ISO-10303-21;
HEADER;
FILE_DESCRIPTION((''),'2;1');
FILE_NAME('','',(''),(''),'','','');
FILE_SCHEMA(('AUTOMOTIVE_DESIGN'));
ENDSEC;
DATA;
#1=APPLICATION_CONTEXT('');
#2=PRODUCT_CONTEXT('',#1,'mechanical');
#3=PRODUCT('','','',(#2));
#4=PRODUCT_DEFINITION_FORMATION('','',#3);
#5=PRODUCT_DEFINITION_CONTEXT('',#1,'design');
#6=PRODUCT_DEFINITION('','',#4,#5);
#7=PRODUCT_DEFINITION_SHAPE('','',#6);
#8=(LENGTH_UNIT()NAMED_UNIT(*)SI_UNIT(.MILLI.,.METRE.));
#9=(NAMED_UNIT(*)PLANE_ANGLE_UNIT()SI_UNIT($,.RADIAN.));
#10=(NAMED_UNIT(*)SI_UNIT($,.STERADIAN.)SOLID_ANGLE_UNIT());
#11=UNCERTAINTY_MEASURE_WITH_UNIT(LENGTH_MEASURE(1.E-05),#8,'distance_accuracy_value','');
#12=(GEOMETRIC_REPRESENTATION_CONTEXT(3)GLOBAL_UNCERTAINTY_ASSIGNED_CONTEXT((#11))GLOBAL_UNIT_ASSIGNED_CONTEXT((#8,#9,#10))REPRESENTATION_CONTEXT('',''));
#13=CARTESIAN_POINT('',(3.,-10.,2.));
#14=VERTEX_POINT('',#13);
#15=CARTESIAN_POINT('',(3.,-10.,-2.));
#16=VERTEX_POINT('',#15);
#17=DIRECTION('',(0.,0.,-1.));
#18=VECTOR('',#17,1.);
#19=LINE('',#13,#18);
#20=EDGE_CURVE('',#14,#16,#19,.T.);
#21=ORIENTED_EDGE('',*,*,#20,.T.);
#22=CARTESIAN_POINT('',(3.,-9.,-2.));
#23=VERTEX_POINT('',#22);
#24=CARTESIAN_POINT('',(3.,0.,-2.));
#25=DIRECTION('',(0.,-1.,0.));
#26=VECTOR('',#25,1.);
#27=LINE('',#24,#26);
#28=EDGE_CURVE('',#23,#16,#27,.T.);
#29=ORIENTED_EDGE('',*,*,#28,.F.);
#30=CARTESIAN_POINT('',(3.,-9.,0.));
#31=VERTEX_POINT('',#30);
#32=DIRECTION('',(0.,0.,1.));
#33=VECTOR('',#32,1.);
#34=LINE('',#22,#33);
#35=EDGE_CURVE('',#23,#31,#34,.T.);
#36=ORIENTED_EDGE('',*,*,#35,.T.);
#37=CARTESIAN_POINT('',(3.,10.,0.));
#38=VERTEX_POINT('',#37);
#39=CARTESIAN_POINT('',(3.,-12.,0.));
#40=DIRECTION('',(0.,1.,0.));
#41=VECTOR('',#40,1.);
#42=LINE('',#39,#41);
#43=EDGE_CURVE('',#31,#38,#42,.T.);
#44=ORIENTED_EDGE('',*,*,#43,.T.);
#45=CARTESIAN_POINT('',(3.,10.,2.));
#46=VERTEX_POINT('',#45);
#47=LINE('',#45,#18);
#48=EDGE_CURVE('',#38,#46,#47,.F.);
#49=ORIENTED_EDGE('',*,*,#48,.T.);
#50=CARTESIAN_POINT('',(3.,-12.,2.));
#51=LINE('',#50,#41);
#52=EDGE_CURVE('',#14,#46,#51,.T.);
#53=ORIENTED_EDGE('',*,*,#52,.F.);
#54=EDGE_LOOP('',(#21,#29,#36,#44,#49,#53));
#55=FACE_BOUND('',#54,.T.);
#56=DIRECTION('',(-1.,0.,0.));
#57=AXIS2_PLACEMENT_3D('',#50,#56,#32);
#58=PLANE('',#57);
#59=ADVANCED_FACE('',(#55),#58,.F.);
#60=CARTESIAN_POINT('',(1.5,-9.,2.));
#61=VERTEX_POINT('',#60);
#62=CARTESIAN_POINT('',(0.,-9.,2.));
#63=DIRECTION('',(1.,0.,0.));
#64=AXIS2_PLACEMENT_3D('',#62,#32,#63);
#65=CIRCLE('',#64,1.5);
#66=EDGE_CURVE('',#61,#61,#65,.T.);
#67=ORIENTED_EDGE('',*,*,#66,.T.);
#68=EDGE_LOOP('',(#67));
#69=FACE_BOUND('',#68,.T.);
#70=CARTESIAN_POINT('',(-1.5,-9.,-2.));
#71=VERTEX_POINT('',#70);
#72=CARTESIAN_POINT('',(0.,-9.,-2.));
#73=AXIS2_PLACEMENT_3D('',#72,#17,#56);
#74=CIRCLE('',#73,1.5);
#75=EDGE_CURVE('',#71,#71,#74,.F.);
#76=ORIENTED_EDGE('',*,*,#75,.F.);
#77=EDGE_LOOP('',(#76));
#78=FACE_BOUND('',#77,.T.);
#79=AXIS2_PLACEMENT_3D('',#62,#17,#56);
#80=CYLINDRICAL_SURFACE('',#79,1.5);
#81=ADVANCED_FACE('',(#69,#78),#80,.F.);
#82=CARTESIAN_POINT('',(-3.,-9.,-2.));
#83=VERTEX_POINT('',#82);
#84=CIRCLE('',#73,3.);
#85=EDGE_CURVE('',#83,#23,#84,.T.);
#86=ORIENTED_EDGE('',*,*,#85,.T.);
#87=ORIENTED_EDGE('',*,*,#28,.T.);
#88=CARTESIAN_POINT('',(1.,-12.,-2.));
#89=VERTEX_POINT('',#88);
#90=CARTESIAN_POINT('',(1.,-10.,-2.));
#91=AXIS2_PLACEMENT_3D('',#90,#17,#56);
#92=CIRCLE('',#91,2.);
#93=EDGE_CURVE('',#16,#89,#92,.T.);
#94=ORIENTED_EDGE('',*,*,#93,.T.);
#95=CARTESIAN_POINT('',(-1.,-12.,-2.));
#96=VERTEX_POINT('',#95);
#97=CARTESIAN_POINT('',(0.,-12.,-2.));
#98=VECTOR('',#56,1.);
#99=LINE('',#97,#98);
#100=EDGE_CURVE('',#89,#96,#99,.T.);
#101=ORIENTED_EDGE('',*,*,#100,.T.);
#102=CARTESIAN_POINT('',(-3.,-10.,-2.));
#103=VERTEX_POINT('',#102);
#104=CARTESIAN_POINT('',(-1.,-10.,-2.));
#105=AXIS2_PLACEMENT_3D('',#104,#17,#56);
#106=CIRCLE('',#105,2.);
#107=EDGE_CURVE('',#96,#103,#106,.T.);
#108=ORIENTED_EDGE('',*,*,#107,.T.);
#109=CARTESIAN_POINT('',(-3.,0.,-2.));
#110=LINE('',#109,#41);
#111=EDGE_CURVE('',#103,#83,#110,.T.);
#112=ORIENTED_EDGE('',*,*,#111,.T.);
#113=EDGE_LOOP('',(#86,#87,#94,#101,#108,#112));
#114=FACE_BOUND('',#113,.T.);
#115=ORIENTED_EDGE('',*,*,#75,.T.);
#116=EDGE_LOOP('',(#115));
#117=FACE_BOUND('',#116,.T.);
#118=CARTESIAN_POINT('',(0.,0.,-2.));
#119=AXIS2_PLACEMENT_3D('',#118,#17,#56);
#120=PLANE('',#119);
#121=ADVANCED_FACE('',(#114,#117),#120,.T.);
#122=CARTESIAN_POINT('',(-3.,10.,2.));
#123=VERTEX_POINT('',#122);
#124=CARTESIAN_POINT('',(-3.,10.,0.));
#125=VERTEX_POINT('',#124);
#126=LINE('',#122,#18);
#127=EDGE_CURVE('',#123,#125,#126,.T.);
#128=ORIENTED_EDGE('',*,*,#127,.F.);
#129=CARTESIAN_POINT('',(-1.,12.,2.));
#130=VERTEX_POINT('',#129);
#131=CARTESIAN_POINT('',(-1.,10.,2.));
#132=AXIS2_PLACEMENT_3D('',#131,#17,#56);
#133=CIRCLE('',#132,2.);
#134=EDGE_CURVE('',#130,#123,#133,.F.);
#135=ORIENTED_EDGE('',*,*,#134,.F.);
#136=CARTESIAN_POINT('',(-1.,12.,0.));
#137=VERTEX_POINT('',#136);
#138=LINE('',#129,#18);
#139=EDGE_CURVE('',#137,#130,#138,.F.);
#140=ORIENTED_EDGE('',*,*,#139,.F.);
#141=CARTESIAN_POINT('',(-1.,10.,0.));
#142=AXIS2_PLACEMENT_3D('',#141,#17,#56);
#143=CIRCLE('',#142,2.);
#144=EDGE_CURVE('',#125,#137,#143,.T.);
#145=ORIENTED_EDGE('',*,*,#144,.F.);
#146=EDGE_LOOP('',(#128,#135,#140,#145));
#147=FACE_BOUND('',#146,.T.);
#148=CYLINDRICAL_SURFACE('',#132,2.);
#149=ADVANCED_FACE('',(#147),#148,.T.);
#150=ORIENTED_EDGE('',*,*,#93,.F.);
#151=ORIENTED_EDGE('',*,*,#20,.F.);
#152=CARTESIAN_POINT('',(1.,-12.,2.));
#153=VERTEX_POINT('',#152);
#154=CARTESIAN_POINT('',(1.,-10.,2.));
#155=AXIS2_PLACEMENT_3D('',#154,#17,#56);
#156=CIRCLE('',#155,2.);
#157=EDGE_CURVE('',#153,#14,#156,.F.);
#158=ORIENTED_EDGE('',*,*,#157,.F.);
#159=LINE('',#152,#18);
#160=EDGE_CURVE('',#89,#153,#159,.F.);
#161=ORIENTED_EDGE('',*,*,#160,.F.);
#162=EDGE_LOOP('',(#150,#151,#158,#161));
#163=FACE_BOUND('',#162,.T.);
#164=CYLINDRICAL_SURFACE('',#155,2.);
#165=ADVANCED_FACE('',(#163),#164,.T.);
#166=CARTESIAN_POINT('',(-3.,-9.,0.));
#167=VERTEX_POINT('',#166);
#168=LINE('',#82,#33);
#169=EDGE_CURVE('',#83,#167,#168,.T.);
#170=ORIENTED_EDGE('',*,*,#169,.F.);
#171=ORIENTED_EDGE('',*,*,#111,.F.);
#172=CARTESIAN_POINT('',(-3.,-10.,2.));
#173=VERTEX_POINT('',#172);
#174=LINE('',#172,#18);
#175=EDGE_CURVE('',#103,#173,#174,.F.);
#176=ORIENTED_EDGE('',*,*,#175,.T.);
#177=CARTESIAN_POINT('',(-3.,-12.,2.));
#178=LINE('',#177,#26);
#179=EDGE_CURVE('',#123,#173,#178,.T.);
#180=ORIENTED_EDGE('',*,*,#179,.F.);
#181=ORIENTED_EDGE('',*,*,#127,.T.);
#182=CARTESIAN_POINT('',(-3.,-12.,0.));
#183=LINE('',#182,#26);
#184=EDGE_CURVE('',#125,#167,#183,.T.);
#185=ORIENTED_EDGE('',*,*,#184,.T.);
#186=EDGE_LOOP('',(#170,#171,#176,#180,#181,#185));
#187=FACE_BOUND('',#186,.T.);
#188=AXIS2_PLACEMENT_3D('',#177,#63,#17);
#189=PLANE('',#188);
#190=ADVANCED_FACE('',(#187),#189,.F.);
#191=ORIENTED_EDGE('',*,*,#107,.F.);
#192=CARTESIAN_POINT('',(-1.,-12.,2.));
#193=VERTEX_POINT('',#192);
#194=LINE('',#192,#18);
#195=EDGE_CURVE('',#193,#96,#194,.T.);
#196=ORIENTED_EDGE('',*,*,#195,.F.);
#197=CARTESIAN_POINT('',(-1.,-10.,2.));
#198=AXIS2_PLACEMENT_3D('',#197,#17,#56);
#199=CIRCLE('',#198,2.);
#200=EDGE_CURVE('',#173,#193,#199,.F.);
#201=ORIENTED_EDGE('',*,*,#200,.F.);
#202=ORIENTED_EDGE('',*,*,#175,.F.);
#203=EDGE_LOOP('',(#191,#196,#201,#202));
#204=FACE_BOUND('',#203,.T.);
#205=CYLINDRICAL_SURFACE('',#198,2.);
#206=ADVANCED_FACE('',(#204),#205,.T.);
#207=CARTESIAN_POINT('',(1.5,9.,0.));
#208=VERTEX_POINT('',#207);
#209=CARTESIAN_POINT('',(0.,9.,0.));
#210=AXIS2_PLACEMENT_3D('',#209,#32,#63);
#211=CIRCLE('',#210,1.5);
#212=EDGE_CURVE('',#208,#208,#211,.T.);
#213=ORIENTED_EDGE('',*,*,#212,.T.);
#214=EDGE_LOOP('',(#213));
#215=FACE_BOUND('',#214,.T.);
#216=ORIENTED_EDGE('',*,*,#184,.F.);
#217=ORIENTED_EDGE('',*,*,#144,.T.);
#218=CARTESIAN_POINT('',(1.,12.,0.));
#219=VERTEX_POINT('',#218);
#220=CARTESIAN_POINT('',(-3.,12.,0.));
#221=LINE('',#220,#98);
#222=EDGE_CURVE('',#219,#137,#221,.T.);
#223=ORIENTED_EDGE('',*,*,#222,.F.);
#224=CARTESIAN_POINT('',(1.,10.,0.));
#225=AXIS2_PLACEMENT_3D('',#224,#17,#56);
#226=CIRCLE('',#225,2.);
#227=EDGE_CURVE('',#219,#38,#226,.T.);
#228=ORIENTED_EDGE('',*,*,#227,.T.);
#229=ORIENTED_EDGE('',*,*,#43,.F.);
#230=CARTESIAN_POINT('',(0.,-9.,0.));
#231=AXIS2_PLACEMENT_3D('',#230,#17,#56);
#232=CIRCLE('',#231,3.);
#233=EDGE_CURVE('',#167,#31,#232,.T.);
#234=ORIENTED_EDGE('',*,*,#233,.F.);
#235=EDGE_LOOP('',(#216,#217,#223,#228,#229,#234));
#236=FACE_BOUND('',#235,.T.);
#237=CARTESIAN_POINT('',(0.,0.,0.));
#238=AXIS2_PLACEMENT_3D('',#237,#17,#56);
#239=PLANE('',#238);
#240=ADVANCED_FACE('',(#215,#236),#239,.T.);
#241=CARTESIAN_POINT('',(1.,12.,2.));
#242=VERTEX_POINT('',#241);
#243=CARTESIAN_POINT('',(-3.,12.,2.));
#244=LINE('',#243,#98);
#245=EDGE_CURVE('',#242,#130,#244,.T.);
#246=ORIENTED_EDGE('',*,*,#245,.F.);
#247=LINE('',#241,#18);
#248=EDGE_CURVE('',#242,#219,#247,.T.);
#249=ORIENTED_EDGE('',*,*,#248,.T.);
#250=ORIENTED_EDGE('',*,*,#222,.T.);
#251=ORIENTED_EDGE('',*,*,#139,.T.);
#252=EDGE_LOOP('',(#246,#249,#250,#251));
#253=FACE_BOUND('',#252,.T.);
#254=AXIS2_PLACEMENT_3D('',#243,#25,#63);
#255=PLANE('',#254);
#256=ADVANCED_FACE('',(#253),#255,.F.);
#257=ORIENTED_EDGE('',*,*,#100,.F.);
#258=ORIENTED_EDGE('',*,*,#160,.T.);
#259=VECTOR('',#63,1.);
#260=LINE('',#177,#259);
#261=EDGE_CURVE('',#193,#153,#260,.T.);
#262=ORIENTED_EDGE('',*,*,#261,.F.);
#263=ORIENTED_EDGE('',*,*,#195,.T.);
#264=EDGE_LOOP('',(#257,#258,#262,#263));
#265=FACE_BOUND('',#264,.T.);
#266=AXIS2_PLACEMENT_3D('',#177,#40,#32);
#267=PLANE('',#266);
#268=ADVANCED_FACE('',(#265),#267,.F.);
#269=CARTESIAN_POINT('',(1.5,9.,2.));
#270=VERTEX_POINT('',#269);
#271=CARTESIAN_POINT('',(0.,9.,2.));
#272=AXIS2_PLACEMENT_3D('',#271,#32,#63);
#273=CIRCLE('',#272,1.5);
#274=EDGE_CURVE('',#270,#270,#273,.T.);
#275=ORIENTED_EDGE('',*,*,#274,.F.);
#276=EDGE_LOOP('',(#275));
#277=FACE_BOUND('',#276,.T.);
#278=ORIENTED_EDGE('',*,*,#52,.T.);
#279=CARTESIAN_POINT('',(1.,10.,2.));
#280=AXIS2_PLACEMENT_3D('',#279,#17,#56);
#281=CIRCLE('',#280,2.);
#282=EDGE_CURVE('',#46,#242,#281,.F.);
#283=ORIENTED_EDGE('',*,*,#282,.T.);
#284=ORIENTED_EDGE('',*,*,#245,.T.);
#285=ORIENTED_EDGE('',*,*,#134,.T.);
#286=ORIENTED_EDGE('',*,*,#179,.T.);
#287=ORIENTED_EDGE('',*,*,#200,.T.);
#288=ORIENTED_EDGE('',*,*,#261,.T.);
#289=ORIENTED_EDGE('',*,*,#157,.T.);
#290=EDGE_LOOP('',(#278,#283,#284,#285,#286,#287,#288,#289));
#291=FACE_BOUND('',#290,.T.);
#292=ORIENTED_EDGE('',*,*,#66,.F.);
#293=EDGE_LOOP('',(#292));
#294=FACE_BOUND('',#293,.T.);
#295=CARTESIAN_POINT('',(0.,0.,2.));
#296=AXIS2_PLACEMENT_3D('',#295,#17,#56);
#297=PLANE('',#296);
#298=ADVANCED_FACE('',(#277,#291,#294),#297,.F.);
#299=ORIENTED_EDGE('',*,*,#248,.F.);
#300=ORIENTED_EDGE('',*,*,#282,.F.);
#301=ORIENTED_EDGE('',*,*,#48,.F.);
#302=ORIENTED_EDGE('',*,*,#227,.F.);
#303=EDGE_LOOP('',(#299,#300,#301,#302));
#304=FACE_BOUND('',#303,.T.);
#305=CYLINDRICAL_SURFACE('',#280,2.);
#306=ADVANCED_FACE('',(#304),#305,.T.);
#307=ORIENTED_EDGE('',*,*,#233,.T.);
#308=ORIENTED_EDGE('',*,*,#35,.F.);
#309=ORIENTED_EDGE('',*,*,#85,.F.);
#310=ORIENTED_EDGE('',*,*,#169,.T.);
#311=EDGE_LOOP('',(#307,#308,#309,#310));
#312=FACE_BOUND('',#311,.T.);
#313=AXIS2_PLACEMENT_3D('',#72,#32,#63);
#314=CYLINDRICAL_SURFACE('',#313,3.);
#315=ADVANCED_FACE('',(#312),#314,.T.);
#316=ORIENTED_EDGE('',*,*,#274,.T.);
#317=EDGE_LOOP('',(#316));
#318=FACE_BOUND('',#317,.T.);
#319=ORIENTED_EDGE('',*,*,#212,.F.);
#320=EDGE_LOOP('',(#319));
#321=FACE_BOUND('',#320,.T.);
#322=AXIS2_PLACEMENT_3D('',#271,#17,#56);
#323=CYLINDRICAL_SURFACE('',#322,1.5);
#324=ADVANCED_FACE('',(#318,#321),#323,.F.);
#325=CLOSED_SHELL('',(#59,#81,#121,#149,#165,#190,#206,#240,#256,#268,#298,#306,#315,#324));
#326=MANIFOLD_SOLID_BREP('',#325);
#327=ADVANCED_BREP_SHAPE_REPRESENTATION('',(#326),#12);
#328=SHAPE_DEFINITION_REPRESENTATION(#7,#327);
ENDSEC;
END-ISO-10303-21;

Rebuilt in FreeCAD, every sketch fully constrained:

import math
import FreeCAD as App
import Part
import Sketcher


def edges_at(feature, points):
    """Names of the edges that pass closest to the given points."""
    edges = feature.Shape.Edges
    near = lambda p: min(range(len(edges)), key=lambda i: edges[i].distToShape(Part.Vertex(*p))[0])
    return sorted({f"Edge{near(p) + 1}" for p in points})

doc = App.newDocument("Part")
body = doc.addObject("PartDesign::Body", "Body")

sketch1 = body.newObject("Sketcher::SketchObject", "Sketch")
sketch1.AttachmentSupport = (doc.getObject("XY_Plane"), [""])
sketch1.MapMode = "FlatFace"
sketch1.addGeometry(Part.LineSegment(App.Vector(-3, 12, 0), App.Vector(-3, -12, 0)), False)
sketch1.addGeometry(Part.LineSegment(App.Vector(-3, -12, 0), App.Vector(3, -12, 0)), False)
sketch1.addGeometry(Part.LineSegment(App.Vector(3, -12, 0), App.Vector(3, 12, 0)), False)
sketch1.addGeometry(Part.LineSegment(App.Vector(3, 12, 0), App.Vector(-3, 12, 0)), False)
sketch1.addGeometry(Part.Circle(App.Vector(0, -9, 0), App.Vector(0, 0, 1), 1.5), False)
sketch1.addGeometry(Part.Circle(App.Vector(0, 9, 0), App.Vector(0, 0, 1), 1.5), False)
sketch1.addConstraint(Sketcher.Constraint("Coincident", 0, 2, 1, 1))
sketch1.addConstraint(Sketcher.Constraint("Coincident", 1, 2, 2, 1))
sketch1.addConstraint(Sketcher.Constraint("Coincident", 2, 2, 3, 1))
sketch1.addConstraint(Sketcher.Constraint("Coincident", 3, 2, 0, 1))
sketch1.addConstraint(Sketcher.Constraint("Vertical", 0))
sketch1.addConstraint(Sketcher.Constraint("Horizontal", 1))
sketch1.addConstraint(Sketcher.Constraint("Vertical", 2))
sketch1.addConstraint(Sketcher.Constraint("Horizontal", 3))
sketch1.addConstraint(Sketcher.Constraint("Equal", 4, 5))
sketch1.addConstraint(Sketcher.Constraint("Symmetric", 4, 3, 5, 3, -1, 1))
sketch1.addConstraint(Sketcher.Constraint("Symmetric", 0, 2, 2, 2, -1, 1))
sketch1.addConstraint(Sketcher.Constraint("PointOnObject", 4, 3, -2))
sketch1.addConstraint(Sketcher.Constraint("Diameter", 4, 3.0))
sketch1.addConstraint(Sketcher.Constraint("DistanceX", 1, 1, 1, 2, 6.0))
sketch1.addConstraint(Sketcher.Constraint("DistanceY", 0, 2, 0, 1, 24.0))
sketch1.addConstraint(Sketcher.Constraint("DistanceY", 4, 3, -1, 1, 9.0))
pad1 = body.newObject("PartDesign::Pad", "Pad")
pad1.Profile = sketch1
pad1.Length = 2
doc.recompute()

fillet = body.newObject("PartDesign::Fillet", "Fillet")
fillet.Base = (pad1, edges_at(pad1, [
    (3, -12, 1),
    (-3, -12, 1),
    (-3, 12, 1),
    (3, 12, 1),
]))
fillet.Radius = 2

sketch2 = body.newObject("Sketcher::SketchObject", "Sketch001")
sketch2.AttachmentSupport = (doc.getObject("XY_Plane"), [""])
sketch2.MapMode = "FlatFace"
sketch2.addGeometry(Part.ArcOfCircle(Part.Circle(App.Vector(0, -9, 0), App.Vector(0, 0, 1), 3), math.radians(0), math.radians(180)), False)
sketch2.addGeometry(Part.LineSegment(App.Vector(3, -9, 0), App.Vector(3, -10, 0)), False)
sketch2.addGeometry(Part.ArcOfCircle(Part.Circle(App.Vector(1, -10, 0), App.Vector(0, 0, 1), 2), math.radians(-90), math.radians(0)), False)
sketch2.addGeometry(Part.LineSegment(App.Vector(1, -12, 0), App.Vector(-1, -12, 0)), False)
sketch2.addGeometry(Part.ArcOfCircle(Part.Circle(App.Vector(-1, -10, 0), App.Vector(0, 0, 1), 2), math.radians(-180), math.radians(-90)), False)
sketch2.addGeometry(Part.LineSegment(App.Vector(-3, -10, 0), App.Vector(-3, -9, 0)), False)
sketch2.addGeometry(Part.Circle(App.Vector(0, -9, 0), App.Vector(0, 0, 1), 1.5), False)
sketch2.addConstraint(Sketcher.Constraint("Tangent", 0, 1, 1, 1))
sketch2.addConstraint(Sketcher.Constraint("Tangent", 1, 2, 2, 2))
sketch2.addConstraint(Sketcher.Constraint("Tangent", 2, 1, 3, 1))
sketch2.addConstraint(Sketcher.Constraint("Tangent", 3, 2, 4, 2))
sketch2.addConstraint(Sketcher.Constraint("Tangent", 4, 1, 5, 1))
sketch2.addConstraint(Sketcher.Constraint("Tangent", 5, 2, 0, 2))
sketch2.addConstraint(Sketcher.Constraint("Vertical", 1))
sketch2.addConstraint(Sketcher.Constraint("Horizontal", 3))
sketch2.addConstraint(Sketcher.Constraint("Vertical", 5))
sketch2.addConstraint(Sketcher.Constraint("Coincident", 6, 3, 0, 3))
sketch2.addConstraint(Sketcher.Constraint("Equal", 2, 4))
sketch2.addConstraint(Sketcher.Constraint("PointOnObject", 0, 3, -2))
sketch2.addConstraint(Sketcher.Constraint("Diameter", 6, 3.0))
sketch2.addConstraint(Sketcher.Constraint("Radius", 0, 3.0))
sketch2.addConstraint(Sketcher.Constraint("Radius", 2, 2.0))
sketch2.addConstraint(Sketcher.Constraint("DistanceY", 1, 2, 1, 1, 1.0))
sketch2.addConstraint(Sketcher.Constraint("DistanceY", 0, 3, -1, 1, 9.0))
pad2 = body.newObject("PartDesign::Pad", "Pad001")
pad2.Profile = sketch2
pad2.Length = 2
pad2.Reversed = True

doc.recompute()
